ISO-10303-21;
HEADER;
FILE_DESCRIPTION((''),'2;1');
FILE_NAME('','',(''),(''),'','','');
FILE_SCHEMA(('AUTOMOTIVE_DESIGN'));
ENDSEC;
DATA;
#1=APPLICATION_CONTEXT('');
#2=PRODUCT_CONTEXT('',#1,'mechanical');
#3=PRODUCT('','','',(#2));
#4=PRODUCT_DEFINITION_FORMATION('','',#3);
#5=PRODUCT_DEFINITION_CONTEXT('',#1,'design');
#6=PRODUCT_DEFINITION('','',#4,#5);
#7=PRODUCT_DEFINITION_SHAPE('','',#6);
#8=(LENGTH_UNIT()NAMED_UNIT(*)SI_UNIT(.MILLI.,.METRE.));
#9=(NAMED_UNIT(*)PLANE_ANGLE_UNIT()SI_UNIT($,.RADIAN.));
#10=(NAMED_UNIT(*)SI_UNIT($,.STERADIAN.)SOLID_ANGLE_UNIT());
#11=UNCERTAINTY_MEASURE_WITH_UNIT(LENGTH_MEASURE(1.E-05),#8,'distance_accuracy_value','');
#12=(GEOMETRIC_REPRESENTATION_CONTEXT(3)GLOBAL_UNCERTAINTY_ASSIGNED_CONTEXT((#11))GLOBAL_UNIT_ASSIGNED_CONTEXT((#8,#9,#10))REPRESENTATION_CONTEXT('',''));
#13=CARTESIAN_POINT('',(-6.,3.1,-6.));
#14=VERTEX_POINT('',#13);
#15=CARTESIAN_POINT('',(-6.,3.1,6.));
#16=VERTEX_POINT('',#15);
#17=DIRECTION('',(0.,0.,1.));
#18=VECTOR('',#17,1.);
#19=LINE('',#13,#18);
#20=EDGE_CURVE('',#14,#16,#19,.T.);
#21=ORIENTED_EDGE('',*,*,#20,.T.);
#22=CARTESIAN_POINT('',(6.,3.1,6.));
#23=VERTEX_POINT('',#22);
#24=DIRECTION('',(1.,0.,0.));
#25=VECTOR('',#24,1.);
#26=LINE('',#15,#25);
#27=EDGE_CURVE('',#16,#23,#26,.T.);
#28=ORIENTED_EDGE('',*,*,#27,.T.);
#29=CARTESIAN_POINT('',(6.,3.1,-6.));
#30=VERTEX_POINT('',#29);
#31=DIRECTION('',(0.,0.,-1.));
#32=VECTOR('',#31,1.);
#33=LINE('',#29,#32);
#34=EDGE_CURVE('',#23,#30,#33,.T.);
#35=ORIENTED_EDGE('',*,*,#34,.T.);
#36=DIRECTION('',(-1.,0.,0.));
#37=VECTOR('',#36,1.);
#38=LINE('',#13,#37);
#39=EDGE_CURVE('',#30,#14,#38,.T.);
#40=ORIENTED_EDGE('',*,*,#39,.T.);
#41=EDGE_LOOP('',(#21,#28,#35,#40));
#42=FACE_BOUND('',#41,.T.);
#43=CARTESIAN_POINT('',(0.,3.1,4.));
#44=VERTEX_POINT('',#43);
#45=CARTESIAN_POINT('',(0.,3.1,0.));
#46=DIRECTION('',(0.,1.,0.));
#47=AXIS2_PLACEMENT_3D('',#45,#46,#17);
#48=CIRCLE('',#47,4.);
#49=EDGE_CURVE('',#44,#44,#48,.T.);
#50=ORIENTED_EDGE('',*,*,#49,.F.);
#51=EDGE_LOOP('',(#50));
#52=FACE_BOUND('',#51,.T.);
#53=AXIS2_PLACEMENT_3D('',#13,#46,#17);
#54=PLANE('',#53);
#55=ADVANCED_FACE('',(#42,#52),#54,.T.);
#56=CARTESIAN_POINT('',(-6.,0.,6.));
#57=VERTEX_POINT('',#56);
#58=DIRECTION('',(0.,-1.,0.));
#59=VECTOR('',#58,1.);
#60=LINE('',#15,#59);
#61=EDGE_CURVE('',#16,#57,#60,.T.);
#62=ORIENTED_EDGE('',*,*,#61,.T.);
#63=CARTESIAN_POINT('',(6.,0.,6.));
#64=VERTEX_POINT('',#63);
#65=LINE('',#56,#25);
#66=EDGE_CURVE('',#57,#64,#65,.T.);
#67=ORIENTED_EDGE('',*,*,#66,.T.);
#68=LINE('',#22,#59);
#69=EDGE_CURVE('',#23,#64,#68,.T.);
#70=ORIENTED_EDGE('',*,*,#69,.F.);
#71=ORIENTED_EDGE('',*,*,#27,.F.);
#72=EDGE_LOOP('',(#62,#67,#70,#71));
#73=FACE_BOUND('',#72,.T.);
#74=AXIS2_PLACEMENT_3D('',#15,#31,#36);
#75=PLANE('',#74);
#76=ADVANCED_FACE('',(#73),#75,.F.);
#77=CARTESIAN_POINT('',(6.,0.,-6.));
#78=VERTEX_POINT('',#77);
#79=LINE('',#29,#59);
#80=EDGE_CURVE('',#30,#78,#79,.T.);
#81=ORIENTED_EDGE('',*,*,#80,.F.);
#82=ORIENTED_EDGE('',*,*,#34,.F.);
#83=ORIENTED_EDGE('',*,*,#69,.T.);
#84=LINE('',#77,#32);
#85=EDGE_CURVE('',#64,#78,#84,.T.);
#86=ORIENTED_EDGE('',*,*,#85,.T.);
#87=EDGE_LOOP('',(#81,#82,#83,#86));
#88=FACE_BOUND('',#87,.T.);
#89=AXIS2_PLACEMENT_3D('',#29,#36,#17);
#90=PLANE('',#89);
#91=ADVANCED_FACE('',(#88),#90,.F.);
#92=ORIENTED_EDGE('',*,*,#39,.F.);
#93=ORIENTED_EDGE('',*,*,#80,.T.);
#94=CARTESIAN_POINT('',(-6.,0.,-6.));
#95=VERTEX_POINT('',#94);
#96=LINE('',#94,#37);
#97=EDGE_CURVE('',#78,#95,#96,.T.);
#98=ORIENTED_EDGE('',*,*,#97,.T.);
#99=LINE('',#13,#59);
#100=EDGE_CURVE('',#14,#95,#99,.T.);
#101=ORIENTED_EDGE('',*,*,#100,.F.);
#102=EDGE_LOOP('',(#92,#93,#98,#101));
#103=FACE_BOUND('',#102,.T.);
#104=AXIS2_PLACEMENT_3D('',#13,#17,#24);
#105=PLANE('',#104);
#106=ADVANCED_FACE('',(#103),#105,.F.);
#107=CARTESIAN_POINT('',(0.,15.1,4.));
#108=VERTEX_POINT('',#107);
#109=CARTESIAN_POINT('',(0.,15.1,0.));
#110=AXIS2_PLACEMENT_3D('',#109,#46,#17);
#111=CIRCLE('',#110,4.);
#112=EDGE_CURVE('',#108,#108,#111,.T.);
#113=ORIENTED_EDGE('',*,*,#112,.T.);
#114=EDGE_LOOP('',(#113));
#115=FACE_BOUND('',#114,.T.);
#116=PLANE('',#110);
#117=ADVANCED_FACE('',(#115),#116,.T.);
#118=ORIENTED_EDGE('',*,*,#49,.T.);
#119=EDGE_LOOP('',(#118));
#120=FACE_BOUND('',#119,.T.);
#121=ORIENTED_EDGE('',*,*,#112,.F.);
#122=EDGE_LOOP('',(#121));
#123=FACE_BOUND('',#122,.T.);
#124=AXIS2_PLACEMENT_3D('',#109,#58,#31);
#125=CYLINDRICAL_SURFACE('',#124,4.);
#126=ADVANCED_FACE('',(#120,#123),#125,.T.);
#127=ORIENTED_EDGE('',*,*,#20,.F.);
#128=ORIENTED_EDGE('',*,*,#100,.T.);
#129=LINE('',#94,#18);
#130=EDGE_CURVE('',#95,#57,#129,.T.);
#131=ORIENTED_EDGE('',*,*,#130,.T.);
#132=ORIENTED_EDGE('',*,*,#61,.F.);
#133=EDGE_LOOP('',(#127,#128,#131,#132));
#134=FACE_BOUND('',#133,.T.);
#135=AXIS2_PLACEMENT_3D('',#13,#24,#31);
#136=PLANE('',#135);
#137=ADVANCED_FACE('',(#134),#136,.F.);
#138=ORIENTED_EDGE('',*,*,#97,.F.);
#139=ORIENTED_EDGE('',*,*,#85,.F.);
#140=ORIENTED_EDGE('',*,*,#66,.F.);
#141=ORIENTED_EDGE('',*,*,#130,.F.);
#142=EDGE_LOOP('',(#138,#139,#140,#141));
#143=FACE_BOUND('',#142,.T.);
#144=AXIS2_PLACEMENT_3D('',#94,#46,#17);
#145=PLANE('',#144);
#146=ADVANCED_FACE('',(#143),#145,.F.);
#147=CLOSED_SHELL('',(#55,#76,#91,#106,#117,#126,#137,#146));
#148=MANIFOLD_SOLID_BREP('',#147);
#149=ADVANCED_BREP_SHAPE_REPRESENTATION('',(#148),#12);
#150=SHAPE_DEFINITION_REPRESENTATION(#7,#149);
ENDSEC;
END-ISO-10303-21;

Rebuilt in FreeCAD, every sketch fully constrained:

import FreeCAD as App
import Part
import Sketcher

V = App.Vector
Q = App.Units.Quantity

doc = App.newDocument("Part")
body = doc.addObject("PartDesign::Body", "Body")

# Sketch on XZ plane
sketch1 = body.newObject("Sketcher::SketchObject", "Sketch")
sketch1.AttachmentSupport = (doc.getObject("XZ_Plane"), [""])
sketch1.MapMode = "FlatFace"
sketch1.addGeometry([
    Part.LineSegment(V(-6, -6, 0), V(-6, 6, 0)),
    Part.LineSegment(V(-6, 6, 0), V(6, 6, 0)),
    Part.LineSegment(V(6, 6, 0), V(6, -6, 0)),
    Part.LineSegment(V(6, -6, 0), V(-6, -6, 0)),
], False)
sketch1.addConstraint([
    Sketcher.Constraint("Coincident", 0, 2, 1, 1),
    Sketcher.Constraint("Coincident", 1, 2, 2, 1),
    Sketcher.Constraint("Coincident", 2, 2, 3, 1),
    Sketcher.Constraint("Coincident", 3, 2, 0, 1),
    Sketcher.Constraint("Vertical", 0),
    Sketcher.Constraint("Horizontal", 1),
    Sketcher.Constraint("Vertical", 2),
    Sketcher.Constraint("Horizontal", 3),
    Sketcher.Constraint("Symmetric", 0, 2, 2, 2, -1, 1),
    Sketcher.Constraint("Equal", 3, 0),
    Sketcher.Constraint("DistanceX", 1, 1, 1, 2, Q("12 mm")),
])
pad1 = body.newObject("PartDesign::Pad", "Pad")
pad1.Profile = sketch1
pad1.Length = 3.1
pad1.Reversed = True

# Sketch on XZ plane
sketch2 = body.newObject("Sketcher::SketchObject", "Sketch001")
sketch2.AttachmentSupport = (doc.getObject("XZ_Plane"), [""])
sketch2.MapMode = "FlatFace"
sketch2.AttachmentOffset = App.Placement(V(0, 0, -3.1), App.Rotation())
sketch2.addGeometry(Part.Circle(V(0, 0, 0), V(0, 0, 1), 4), False)
sketch2.addConstraint([
    Sketcher.Constraint("Coincident", 0, 3, -1, 1),
    Sketcher.Constraint("Diameter", 0, Q("8 mm")),
])
pad2 = body.newObject("PartDesign::Pad", "Pad001")
pad2.Profile = sketch2
pad2.Length = 12
pad2.Reversed = True

doc.recompute()
